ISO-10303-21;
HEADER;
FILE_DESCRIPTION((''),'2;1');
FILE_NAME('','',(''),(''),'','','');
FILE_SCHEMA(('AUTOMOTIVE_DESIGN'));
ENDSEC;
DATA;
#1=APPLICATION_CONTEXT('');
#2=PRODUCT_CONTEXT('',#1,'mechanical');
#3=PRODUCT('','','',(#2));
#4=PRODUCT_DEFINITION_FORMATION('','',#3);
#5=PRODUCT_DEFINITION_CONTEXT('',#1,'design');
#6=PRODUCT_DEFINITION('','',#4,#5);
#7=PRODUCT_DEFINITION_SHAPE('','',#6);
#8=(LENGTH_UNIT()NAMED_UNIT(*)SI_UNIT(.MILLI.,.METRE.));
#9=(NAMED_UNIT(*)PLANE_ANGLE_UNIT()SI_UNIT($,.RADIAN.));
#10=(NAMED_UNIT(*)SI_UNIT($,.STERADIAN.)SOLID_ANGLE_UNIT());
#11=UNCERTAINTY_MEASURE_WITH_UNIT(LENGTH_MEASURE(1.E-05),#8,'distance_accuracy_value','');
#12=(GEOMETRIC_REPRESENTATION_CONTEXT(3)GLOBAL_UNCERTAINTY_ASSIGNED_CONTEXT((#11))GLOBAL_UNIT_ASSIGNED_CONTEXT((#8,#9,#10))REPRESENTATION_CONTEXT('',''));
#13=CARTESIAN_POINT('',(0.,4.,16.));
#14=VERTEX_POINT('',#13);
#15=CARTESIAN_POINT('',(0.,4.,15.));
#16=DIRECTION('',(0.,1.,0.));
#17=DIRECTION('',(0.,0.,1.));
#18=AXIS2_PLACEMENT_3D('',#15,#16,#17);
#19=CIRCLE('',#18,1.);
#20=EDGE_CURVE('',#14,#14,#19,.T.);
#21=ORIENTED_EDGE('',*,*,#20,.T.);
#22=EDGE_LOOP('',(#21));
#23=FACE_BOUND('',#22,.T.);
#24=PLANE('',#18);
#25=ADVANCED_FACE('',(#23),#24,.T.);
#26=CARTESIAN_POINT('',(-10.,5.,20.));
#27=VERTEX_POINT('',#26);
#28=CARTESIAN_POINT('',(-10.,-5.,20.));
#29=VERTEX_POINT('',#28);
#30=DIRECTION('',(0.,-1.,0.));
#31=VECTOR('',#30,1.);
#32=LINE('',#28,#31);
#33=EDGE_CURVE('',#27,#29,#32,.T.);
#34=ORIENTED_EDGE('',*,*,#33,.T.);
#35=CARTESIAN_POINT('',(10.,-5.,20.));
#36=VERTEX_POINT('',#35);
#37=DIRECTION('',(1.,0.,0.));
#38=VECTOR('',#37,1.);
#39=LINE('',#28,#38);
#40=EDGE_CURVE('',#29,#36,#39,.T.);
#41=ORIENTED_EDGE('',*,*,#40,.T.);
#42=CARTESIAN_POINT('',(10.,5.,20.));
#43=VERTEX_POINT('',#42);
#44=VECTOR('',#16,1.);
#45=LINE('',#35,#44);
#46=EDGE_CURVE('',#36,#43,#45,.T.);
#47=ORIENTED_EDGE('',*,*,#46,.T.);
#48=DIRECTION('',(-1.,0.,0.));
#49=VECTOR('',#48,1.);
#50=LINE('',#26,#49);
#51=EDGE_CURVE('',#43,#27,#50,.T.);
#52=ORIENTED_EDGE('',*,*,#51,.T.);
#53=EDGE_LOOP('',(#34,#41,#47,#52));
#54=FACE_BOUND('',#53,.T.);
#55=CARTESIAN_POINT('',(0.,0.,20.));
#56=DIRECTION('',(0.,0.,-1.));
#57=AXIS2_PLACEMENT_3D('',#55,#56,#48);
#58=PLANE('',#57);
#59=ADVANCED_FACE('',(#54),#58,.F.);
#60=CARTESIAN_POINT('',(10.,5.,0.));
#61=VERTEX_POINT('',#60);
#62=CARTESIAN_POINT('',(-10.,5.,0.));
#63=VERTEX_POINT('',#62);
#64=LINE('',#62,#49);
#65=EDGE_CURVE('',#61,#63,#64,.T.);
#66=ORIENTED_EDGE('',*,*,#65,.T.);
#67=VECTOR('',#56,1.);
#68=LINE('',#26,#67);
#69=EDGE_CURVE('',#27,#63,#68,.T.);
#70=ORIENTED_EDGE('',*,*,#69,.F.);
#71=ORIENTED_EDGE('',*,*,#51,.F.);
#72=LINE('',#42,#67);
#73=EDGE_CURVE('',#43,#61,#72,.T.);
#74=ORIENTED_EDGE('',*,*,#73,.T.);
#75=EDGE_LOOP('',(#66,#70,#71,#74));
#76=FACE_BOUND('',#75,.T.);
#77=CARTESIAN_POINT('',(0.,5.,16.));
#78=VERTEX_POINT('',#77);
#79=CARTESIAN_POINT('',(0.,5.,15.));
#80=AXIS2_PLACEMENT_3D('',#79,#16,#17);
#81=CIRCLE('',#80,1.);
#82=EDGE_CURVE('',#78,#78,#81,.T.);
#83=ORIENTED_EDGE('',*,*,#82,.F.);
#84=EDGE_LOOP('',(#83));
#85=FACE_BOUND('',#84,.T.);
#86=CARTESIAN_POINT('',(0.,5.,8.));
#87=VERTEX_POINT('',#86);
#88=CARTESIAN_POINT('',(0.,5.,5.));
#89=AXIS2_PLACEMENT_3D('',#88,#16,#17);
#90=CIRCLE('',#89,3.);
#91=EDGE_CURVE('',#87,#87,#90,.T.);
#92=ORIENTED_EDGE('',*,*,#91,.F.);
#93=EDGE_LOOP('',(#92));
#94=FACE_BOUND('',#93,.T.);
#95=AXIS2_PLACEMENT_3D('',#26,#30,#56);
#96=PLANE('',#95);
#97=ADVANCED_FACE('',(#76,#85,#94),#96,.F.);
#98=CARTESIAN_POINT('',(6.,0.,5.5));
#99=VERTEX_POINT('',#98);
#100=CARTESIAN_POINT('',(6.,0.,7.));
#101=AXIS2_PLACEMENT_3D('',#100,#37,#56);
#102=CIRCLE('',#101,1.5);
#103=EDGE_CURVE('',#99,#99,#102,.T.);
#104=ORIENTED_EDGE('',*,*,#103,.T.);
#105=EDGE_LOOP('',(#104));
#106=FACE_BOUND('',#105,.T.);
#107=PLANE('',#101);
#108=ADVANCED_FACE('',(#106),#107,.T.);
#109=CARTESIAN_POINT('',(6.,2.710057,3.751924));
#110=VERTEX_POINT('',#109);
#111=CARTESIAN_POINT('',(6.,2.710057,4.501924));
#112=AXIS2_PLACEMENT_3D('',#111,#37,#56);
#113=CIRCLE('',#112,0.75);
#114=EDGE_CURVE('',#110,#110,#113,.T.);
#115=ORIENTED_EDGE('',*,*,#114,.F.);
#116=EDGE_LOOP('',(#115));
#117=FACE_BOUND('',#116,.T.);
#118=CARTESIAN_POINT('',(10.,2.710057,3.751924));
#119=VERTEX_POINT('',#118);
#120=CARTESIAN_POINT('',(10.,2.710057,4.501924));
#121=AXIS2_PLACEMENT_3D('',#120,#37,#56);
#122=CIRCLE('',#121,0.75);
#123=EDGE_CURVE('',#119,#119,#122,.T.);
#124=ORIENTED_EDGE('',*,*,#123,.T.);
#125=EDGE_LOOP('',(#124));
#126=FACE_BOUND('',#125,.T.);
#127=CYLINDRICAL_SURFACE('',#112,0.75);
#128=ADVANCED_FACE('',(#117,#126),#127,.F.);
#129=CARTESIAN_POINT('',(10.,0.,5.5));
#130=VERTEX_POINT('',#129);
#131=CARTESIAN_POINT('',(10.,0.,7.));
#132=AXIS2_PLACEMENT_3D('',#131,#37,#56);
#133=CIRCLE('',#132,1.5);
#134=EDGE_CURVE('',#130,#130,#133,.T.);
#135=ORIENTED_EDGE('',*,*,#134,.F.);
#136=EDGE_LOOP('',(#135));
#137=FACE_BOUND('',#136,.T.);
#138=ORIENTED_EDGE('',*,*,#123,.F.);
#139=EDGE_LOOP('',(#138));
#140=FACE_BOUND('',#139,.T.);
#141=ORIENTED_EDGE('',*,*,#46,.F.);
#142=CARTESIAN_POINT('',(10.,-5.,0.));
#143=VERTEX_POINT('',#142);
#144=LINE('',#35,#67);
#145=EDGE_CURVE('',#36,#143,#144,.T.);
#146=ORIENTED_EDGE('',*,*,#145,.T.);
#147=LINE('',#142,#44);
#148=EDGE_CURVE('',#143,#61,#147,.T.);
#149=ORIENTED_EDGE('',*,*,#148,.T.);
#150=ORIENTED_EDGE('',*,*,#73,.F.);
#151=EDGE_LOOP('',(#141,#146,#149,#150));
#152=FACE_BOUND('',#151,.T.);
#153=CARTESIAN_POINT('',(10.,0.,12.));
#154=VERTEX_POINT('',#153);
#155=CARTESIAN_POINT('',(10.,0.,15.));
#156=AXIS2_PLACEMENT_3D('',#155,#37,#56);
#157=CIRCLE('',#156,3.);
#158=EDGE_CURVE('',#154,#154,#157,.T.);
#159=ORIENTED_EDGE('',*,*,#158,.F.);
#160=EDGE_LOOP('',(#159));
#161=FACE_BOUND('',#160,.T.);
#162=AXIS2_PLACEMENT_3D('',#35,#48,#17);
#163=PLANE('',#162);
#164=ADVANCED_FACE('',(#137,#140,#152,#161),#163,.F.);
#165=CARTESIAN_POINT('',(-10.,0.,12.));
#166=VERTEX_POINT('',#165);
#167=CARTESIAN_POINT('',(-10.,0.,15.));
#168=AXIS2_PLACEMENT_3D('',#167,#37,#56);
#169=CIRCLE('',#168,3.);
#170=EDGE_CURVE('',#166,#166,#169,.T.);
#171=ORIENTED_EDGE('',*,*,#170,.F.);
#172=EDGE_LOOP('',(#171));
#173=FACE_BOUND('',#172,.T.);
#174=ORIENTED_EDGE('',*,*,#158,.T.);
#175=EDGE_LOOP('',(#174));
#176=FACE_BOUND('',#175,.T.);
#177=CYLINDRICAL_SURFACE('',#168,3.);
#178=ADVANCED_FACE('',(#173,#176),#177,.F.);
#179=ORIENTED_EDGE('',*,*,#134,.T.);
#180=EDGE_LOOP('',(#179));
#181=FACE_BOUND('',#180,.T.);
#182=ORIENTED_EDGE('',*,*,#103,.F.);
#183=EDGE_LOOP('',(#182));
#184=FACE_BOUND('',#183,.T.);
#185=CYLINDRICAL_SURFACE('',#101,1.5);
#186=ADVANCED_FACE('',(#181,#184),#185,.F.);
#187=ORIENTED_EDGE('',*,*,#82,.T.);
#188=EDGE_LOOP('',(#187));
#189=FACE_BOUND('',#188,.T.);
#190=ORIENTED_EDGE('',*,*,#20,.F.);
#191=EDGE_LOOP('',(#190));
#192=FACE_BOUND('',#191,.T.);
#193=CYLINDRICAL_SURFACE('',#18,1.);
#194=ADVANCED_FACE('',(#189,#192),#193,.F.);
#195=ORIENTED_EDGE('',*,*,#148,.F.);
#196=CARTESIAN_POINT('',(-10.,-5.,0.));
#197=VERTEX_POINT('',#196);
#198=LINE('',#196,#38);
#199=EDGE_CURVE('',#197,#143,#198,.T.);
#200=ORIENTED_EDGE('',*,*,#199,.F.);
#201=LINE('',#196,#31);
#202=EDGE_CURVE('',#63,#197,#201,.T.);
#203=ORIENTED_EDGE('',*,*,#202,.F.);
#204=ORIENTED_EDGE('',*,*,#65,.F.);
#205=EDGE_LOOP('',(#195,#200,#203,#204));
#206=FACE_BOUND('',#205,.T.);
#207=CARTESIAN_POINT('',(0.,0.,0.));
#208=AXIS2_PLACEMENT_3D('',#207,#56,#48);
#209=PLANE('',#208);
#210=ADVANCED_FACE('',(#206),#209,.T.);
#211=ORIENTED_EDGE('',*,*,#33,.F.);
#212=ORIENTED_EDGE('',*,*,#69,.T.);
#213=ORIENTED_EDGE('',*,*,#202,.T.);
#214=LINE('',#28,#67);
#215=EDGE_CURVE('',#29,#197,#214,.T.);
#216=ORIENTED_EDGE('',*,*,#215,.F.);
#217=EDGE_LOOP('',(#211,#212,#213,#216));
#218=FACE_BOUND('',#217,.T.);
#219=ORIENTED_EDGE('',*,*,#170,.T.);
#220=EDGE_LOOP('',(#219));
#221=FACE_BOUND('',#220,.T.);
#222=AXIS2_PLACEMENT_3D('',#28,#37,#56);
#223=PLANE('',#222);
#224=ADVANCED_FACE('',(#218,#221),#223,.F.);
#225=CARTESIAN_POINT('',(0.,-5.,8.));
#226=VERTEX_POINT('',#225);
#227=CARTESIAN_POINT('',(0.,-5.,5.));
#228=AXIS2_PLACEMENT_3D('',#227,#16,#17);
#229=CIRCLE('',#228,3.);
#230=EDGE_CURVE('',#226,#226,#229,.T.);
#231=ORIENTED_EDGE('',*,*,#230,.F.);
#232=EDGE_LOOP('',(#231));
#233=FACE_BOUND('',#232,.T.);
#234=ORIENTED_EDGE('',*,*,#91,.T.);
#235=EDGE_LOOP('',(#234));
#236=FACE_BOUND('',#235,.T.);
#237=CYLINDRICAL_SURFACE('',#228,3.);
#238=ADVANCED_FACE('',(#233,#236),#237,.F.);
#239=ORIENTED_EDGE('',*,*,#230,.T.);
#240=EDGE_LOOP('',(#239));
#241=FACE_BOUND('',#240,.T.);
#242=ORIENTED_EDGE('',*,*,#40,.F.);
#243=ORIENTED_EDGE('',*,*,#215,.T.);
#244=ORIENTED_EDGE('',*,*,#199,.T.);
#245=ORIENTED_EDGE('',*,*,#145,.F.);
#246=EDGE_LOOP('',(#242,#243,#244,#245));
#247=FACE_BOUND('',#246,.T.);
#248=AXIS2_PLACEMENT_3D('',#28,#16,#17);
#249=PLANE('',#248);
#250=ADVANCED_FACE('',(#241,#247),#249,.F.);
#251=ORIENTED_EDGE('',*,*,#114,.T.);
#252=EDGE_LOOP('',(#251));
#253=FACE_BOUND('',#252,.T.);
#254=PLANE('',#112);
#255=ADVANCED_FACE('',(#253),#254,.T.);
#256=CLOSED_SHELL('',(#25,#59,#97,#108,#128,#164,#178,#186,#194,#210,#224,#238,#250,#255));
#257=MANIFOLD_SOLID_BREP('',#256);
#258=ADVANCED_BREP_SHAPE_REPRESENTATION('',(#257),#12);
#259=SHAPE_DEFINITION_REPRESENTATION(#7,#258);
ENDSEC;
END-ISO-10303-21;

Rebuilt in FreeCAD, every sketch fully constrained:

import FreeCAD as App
import Part
import Sketcher

V = App.Vector
Q = App.Units.Quantity


def add_polygon(sketch, points):
    """Adds a closed chain of lines whose ends are joined by coincident constraints."""
    first, n = sketch.GeometryCount, len(points)
    for a, b in zip(points, points[1:] + points[:1]):
        sketch.addGeometry(Part.LineSegment(App.Vector(*a, 0), App.Vector(*b, 0)), False)
    for i in range(n):
        sketch.addConstraint(Sketcher.Constraint("Coincident", first + i, 2, first + (i + 1) % n, 1))

doc = App.newDocument("Part")
body = doc.addObject("PartDesign::Body", "Body")

sketch1 = body.newObject("Sketcher::SketchObject", "Sketch")
sketch1.AttachmentSupport = (doc.getObject("XY_Plane"), [""])
sketch1.MapMode = "FlatFace"
add_polygon(sketch1, [(-10, 5), (-10, -5), (10, -5), (10, 5)])
sketch1.addConstraint(Sketcher.Constraint("Vertical", 0))
sketch1.addConstraint(Sketcher.Constraint("Horizontal", 1))
sketch1.addConstraint(Sketcher.Constraint("Vertical", 2))
sketch1.addConstraint(Sketcher.Constraint("Horizontal", 3))
sketch1.addConstraint(Sketcher.Constraint("Symmetric", 0, 2, 2, 2, -1, 1))
sketch1.addConstraint(Sketcher.Constraint("DistanceX", 1, 1, 1, 2, Q("20 mm")))
sketch1.addConstraint(Sketcher.Constraint("DistanceY", 0, 2, 0, 1, Q("10 mm")))
pad1 = body.newObject("PartDesign::Pad", "Pad")
pad1.Profile = sketch1
pad1.Length = 20

sketch2 = body.newObject("Sketcher::SketchObject", "Sketch001")
sketch2.AttachmentSupport = (doc.getObject("XZ_Plane"), [""])
sketch2.MapMode = "FlatFace"
sketch2.AttachmentOffset = App.Placement(V(0, 0, -5), App.Rotation())
sketch2.addGeometry(Part.Circle(V(0, 5, 0), V(0, 0, 1), 3), False)
sketch2.addConstraint(Sketcher.Constraint("PointOnObject", 0, 3, -2))
sketch2.addConstraint(Sketcher.Constraint("Diameter", 0, Q("6 mm")))
sketch2.addConstraint(Sketcher.Constraint("DistanceY", -1, 1, 0, 3, Q("5 mm")))
pocket1 = body.newObject("PartDesign::Pocket", "Pocket")
pocket1.Profile = sketch2
pocket1.Length = 10
pocket1.Reversed = True

sketch3 = body.newObject("Sketcher::SketchObject", "Sketch002")
sketch3.AttachmentSupport = (doc.getObject("XZ_Plane"), [""])
sketch3.MapMode = "FlatFace"
sketch3.AttachmentOffset = App.Placement(V(0, 0, -5), App.Rotation())
sketch3.addGeometry(Part.Circle(V(0, 15, 0), V(0, 0, 1), 1), False)
sketch3.addConstraint(Sketcher.Constraint("PointOnObject", 0, 3, -2))
sketch3.addConstraint(Sketcher.Constraint("Diameter", 0, Q("2 mm")))
sketch3.addConstraint(Sketcher.Constraint("DistanceY", -1, 1, 0, 3, Q("15 mm")))
pocket2 = body.newObject("PartDesign::Pocket", "Pocket001")
pocket2.Profile = sketch3
pocket2.Length = 1
pocket2.Reversed = True

sketch4 = body.newObject("Sketcher::SketchObject", "Sketch003")
sketch4.AttachmentSupport = (doc.getObject("YZ_Plane"), [""])
sketch4.MapMode = "FlatFace"
sketch4.AttachmentOffset = App.Placement(V(0, 0, 10), App.Rotation())
sketch4.addGeometry(Part.Circle(V(0, 15, 0), V(0, 0, 1), 3), False)
sketch4.addConstraint(Sketcher.Constraint("PointOnObject", 0, 3, -2))
sketch4.addConstraint(Sketcher.Constraint("Diameter", 0, Q("6 mm")))
sketch4.addConstraint(Sketcher.Constraint("DistanceY", -1, 1, 0, 3, Q("15 mm")))
pocket3 = body.newObject("PartDesign::Pocket", "Pocket002")
pocket3.Profile = sketch4
pocket3.Length = 20

sketch5 = body.newObject("Sketcher::SketchObject", "Sketch004")
sketch5.AttachmentSupport = (doc.getObject("YZ_Plane"), [""])
sketch5.MapMode = "FlatFace"
sketch5.AttachmentOffset = App.Placement(V(0, 0, 10), App.Rotation())
sketch5.addGeometry(Part.Circle(V(0, 7, 0), V(0, 0, 1), 1.5), False)
sketch5.addGeometry(Part.Circle(V(2.710057, 4.501924, 0), V(0, 0, 1), 0.75), False)
sketch5.addConstraint(Sketcher.Constraint("PointOnObject", 0, 3, -2))
sketch5.addConstraint(Sketcher.Constraint("Diameter", 0, Q("3 mm")))
sketch5.addConstraint(Sketcher.Constraint("Diameter", 1, Q("1.5 mm")))
sketch5.addConstraint(Sketcher.Constraint("DistanceY", -1, 1, 0, 3, Q("7 mm")))
sketch5.addConstraint(Sketcher.Constraint("DistanceX", -1, 1, 1, 3, Q("2.710057 mm")))
sketch5.addConstraint(Sketcher.Constraint("DistanceY", -1, 1, 1, 3, Q("4.501924 mm")))
pocket4 = body.newObject("PartDesign::Pocket", "Pocket003")
pocket4.Profile = sketch5
pocket4.Length = 4

doc.recompute()
